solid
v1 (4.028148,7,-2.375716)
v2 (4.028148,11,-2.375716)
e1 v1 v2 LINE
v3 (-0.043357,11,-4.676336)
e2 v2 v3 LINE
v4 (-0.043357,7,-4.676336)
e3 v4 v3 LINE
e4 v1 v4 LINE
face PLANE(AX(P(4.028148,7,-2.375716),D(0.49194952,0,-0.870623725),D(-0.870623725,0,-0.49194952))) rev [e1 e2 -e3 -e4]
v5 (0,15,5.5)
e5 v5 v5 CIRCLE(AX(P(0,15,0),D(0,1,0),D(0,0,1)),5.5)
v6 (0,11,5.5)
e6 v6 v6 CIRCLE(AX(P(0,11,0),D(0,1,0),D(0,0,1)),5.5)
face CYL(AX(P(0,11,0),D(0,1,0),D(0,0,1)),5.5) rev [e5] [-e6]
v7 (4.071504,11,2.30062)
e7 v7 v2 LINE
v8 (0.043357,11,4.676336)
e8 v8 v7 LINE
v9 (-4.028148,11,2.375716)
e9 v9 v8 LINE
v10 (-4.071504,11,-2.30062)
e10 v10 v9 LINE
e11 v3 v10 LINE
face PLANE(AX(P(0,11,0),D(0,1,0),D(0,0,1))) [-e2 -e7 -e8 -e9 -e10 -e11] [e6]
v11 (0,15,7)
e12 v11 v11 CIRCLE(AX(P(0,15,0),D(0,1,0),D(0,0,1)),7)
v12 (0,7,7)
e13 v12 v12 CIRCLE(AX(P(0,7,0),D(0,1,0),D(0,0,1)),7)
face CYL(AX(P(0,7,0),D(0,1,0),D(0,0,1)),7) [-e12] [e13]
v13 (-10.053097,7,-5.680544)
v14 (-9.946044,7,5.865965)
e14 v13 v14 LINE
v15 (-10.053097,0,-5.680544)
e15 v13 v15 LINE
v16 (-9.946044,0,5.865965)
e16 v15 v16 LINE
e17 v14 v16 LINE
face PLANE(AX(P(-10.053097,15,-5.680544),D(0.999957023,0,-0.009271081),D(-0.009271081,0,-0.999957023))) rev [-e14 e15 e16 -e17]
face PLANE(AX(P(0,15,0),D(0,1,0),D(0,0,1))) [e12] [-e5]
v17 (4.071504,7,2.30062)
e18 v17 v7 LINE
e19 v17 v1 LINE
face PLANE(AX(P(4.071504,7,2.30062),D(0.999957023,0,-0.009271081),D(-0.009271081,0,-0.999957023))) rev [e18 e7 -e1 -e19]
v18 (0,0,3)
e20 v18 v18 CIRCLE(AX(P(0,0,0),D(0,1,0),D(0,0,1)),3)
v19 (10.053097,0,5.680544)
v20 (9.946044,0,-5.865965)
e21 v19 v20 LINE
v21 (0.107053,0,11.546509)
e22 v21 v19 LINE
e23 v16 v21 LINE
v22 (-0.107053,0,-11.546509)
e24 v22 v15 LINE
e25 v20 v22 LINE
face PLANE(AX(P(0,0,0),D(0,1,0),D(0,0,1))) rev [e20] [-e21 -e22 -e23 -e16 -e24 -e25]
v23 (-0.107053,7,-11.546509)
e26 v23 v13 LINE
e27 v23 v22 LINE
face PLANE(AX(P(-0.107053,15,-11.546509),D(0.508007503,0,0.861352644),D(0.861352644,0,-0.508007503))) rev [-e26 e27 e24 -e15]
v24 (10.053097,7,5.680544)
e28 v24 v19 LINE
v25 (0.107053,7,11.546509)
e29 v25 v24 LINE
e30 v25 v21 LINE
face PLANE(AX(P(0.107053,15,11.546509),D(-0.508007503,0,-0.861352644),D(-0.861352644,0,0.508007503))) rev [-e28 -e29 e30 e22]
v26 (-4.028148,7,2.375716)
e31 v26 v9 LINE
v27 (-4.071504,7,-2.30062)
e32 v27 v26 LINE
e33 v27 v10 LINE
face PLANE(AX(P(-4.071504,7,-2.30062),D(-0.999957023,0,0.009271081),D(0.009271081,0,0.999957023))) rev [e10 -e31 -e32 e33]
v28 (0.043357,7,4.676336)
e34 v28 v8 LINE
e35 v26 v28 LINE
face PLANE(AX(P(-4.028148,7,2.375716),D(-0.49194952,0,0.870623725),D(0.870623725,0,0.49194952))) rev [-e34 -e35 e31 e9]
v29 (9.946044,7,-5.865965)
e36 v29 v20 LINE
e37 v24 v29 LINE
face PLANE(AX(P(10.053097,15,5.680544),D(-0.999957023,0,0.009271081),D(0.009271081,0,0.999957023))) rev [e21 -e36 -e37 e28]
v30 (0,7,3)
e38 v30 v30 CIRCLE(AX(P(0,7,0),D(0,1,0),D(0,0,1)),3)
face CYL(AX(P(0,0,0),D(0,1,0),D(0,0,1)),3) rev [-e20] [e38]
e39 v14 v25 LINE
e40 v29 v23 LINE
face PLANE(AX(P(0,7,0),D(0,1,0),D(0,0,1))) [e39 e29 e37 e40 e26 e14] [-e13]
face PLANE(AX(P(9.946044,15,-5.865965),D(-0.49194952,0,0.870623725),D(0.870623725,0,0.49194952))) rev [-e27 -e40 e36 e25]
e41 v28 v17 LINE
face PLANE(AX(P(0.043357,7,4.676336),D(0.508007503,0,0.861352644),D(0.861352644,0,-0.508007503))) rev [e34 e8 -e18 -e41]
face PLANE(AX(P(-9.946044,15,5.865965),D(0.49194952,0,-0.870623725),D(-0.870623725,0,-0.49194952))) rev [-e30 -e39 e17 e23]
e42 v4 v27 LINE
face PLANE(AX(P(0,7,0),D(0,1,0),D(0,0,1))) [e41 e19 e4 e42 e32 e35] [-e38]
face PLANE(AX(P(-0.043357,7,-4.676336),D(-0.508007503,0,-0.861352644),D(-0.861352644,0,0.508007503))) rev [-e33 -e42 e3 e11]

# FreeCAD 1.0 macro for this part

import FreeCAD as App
import Part
import Sketcher

V = App.Vector
Q = App.Units.Quantity

doc = App.newDocument("Part")
body = doc.addObject("PartDesign::Body", "Body")

# Sketch on XZ plane
sketch1 = body.newObject("Sketcher::SketchObject", "Sketch")
sketch1.AttachmentSupport = (doc.getObject("XZ_Plane"), [""])
sketch1.MapMode = "FlatFace"
sketch1.addGeometry(Part.LineSegment(V(9.946044, -5.865965, 0), V(-0.107053, -11.546509, 0)), False)
sketch1.addGeometry(Part.LineSegment(V(-0.107053, -11.546509, 0), V(-10.053097, -5.680544, 0)), False)
sketch1.addGeometry(Part.LineSegment(V(-10.053097, -5.680544, 0), V(-9.946044, 5.865965, 0)), False)
sketch1.addGeometry(Part.LineSegment(V(-9.946044, 5.865965, 0), V(0.107053, 11.546509, 0)), False)
sketch1.addGeometry(Part.LineSegment(V(0.107053, 11.546509, 0), V(10.053097, 5.680544, 0)), False)
sketch1.addGeometry(Part.LineSegment(V(10.053097, 5.680544, 0), V(9.946044, -5.865965, 0)), False)
sketch1.addConstraint(Sketcher.Constraint("Coincident", 0, 2, 1, 1))
sketch1.addConstraint(Sketcher.Constraint("Coincident", 1, 2, 2, 1))
sketch1.addConstraint(Sketcher.Constraint("Coincident", 2, 2, 3, 1))
sketch1.addConstraint(Sketcher.Constraint("Coincident", 3, 2, 4, 1))
sketch1.addConstraint(Sketcher.Constraint("Coincident", 4, 2, 5, 1))
sketch1.addConstraint(Sketcher.Constraint("Coincident", 5, 2, 0, 1))
sketch1.addConstraint(Sketcher.Constraint("Symmetric", 0, 2, 3, 2, -1, 1))
sketch1.addConstraint(Sketcher.Constraint("Symmetric", 1, 2, 4, 2, -1, 1))
sketch1.addConstraint(Sketcher.Constraint("Symmetric", 2, 2, 5, 2, -1, 1))
sketch1.addConstraint(Sketcher.Constraint("Equal", 0, 1))
sketch1.addConstraint(Sketcher.Constraint("Equal", 1, 2))
sketch1.addConstraint(Sketcher.Constraint("DistanceY", 0, 2, -1, 1, Q("11.546509 mm")))
sketch1.addConstraint(Sketcher.Constraint("DistanceY", 1, 2, 2, 2, Q("11.546509 mm")))
sketch1.addConstraint(Sketcher.Constraint("DistanceX", 2, 2, 0, 2, Q("9.83899 mm")))
sketch1.addConstraint(Sketcher.Constraint("DistanceX", 1, 2, 3, 2, Q("10.16015 mm")))
pad1 = body.newObject("PartDesign::Pad", "Pad")
pad1.Profile = sketch1
pad1.Length = 15
pad1.Reversed = True

# Sketch on XZ plane
sketch2 = body.newObject("Sketcher::SketchObject", "Sketch001")
sketch2.AttachmentSupport = (doc.getObject("XZ_Plane"), [""])
sketch2.MapMode = "FlatFace"
sketch2.AttachmentOffset = App.Placement(V(0, 0, -15), App.Rotation())
sketch2.addGeometry(Part.LineSegment(V(-14.463, -15.957, 0), V(-14.463, 15.957, 0)), False)
sketch2.addGeometry(Part.LineSegment(V(-14.463, 15.957, 0), V(14.463, 15.957, 0)), False)
sketch2.addGeometry(Part.LineSegment(V(14.463, 15.957, 0), V(14.463, -15.957, 0)), False)
sketch2.addGeometry(Part.LineSegment(V(14.463, -15.957, 0), V(-14.463, -15.957, 0)), False)
sketch2.addGeometry(Part.Circle(V(0, 0, 0), V(0, 0, 1), 7), False)
sketch2.addConstraint(Sketcher.Constraint("Coincident", 0, 2, 1, 1))
sketch2.addConstraint(Sketcher.Constraint("Coincident", 1, 2, 2, 1))
sketch2.addConstraint(Sketcher.Constraint("Coincident", 2, 2, 3, 1))
sketch2.addConstraint(Sketcher.Constraint("Coincident", 3, 2, 0, 1))
sketch2.addConstraint(Sketcher.Constraint("Vertical", 0))
sketch2.addConstraint(Sketcher.Constraint("Horizontal", 1))
sketch2.addConstraint(Sketcher.Constraint("Vertical", 2))
sketch2.addConstraint(Sketcher.Constraint("Horizontal", 3))
sketch2.addConstraint(Sketcher.Constraint("Coincident", 4, 3, -1, 1))
sketch2.addConstraint(Sketcher.Constraint("Symmetric", 0, 2, 2, 2, -1, 1))
sketch2.addConstraint(Sketcher.Constraint("Diameter", 4, Q("14 mm")))
sketch2.addConstraint(Sketcher.Constraint("DistanceX", 1, 1, 1, 2, Q("28.926 mm")))
sketch2.addConstraint(Sketcher.Constraint("DistanceY", 0, 1, 0, 2, Q("31.914 mm")))
pocket1 = body.newObject("PartDesign::Pocket", "Pocket")
pocket1.Profile = sketch2
pocket1.Length = 8
pocket1.Reversed = True

# Sketch on XZ plane
sketch3 = body.newObject("Sketcher::SketchObject", "Sketch002")
sketch3.AttachmentSupport = (doc.getObject("XZ_Plane"), [""])
sketch3.MapMode = "FlatFace"
sketch3.AttachmentOffset = App.Placement(V(0, 0, -15), App.Rotation())
sketch3.addGeometry(Part.Circle(V(0, 0, 0), V(0, 0, 1), 5.5), False)
sketch3.addConstraint(Sketcher.Constraint("Coincident", 0, 3, -1, 1))
sketch3.addConstraint(Sketcher.Constraint("Diameter", 0, Q("11 mm")))
pocket2 = body.newObject("PartDesign::Pocket", "Pocket001")
pocket2.Profile = sketch3
pocket2.Length = 4
pocket2.Reversed = True

# Sketch on XZ plane
sketch4 = body.newObject("Sketcher::SketchObject", "Sketch003")
sketch4.AttachmentSupport = (doc.getObject("XZ_Plane"), [""])
sketch4.MapMode = "FlatFace"
sketch4.AttachmentOffset = App.Placement(V(0, 0, -11), App.Rotation())
sketch4.addGeometry(Part.LineSegment(V(-4.071504, -2.30062, 0), V(-4.028148, 2.375716, 0)), False)
sketch4.addGeometry(Part.LineSegment(V(-4.028148, 2.375716, 0), V(0.043357, 4.676336, 0)), False)
sketch4.addGeometry(Part.LineSegment(V(0.043357, 4.676336, 0), V(4.071504, 2.30062, 0)), False)
sketch4.addGeometry(Part.LineSegment(V(4.071504, 2.30062, 0), V(4.028148, -2.375716, 0)), False)
sketch4.addGeometry(Part.LineSegment(V(4.028148, -2.375716, 0), V(-0.043357, -4.676336, 0)), False)
sketch4.addGeometry(Part.LineSegment(V(-0.043357, -4.676336, 0), V(-4.071504, -2.30062, 0)), False)
sketch4.addConstraint(Sketcher.Constraint("Coincident", 0, 2, 1, 1))
sketch4.addConstraint(Sketcher.Constraint("Coincident", 1, 2, 2, 1))
sketch4.addConstraint(Sketcher.Constraint("Coincident", 2, 2, 3, 1))
sketch4.addConstraint(Sketcher.Constraint("Coincident", 3, 2, 4, 1))
sketch4.addConstraint(Sketcher.Constraint("Coincident", 4, 2, 5, 1))
sketch4.addConstraint(Sketcher.Constraint("Coincident", 5, 2, 0, 1))
sketch4.addConstraint(Sketcher.Constraint("Symmetric", 0, 2, 3, 2, -1, 1))
sketch4.addConstraint(Sketcher.Constraint("Symmetric", 1, 2, 4, 2, -1, 1))
sketch4.addConstraint(Sketcher.Constraint("Symmetric", 2, 2, 5, 2, -1, 1))
sketch4.addConstraint(Sketcher.Constraint("Equal", 0, 1))
sketch4.addConstraint(Sketcher.Constraint("Equal", 1, 2))
sketch4.addConstraint(Sketcher.Constraint("DistanceY", -1, 1, 2, 2, Q("2.30062 mm")))
sketch4.addConstraint(Sketcher.Constraint("DistanceY", 0, 2, 1, 2, Q("2.30062 mm")))
sketch4.addConstraint(Sketcher.Constraint("DistanceX", 0, 2, 2, 2, Q("8.099652 mm")))
sketch4.addConstraint(Sketcher.Constraint("DistanceX", 1, 2, 3, 2, Q("3.984791 mm")))
pocket3 = body.newObject("PartDesign::Pocket", "Pocket002")
pocket3.Profile = sketch4
pocket3.Length = 4
pocket3.Reversed = True

# Sketch on XZ plane
sketch5 = body.newObject("Sketcher::SketchObject", "Sketch004")
sketch5.AttachmentSupport = (doc.getObject("XZ_Plane"), [""])
sketch5.MapMode = "FlatFace"
sketch5.AttachmentOffset = App.Placement(V(0, 0, -7), App.Rotation())
sketch5.addGeometry(Part.Circle(V(0, 0, 0), V(0, 0, 1), 3), False)
sketch5.addConstraint(Sketcher.Constraint("Coincident", 0, 3, -1, 1))
sketch5.addConstraint(Sketcher.Constraint("Diameter", 0, Q("6 mm")))
pocket4 = body.newObject("PartDesign::Pocket", "Pocket003")
pocket4.Profile = sketch5
pocket4.Type = "ThroughAll"
pocket4.Reversed = True

doc.recompute()
